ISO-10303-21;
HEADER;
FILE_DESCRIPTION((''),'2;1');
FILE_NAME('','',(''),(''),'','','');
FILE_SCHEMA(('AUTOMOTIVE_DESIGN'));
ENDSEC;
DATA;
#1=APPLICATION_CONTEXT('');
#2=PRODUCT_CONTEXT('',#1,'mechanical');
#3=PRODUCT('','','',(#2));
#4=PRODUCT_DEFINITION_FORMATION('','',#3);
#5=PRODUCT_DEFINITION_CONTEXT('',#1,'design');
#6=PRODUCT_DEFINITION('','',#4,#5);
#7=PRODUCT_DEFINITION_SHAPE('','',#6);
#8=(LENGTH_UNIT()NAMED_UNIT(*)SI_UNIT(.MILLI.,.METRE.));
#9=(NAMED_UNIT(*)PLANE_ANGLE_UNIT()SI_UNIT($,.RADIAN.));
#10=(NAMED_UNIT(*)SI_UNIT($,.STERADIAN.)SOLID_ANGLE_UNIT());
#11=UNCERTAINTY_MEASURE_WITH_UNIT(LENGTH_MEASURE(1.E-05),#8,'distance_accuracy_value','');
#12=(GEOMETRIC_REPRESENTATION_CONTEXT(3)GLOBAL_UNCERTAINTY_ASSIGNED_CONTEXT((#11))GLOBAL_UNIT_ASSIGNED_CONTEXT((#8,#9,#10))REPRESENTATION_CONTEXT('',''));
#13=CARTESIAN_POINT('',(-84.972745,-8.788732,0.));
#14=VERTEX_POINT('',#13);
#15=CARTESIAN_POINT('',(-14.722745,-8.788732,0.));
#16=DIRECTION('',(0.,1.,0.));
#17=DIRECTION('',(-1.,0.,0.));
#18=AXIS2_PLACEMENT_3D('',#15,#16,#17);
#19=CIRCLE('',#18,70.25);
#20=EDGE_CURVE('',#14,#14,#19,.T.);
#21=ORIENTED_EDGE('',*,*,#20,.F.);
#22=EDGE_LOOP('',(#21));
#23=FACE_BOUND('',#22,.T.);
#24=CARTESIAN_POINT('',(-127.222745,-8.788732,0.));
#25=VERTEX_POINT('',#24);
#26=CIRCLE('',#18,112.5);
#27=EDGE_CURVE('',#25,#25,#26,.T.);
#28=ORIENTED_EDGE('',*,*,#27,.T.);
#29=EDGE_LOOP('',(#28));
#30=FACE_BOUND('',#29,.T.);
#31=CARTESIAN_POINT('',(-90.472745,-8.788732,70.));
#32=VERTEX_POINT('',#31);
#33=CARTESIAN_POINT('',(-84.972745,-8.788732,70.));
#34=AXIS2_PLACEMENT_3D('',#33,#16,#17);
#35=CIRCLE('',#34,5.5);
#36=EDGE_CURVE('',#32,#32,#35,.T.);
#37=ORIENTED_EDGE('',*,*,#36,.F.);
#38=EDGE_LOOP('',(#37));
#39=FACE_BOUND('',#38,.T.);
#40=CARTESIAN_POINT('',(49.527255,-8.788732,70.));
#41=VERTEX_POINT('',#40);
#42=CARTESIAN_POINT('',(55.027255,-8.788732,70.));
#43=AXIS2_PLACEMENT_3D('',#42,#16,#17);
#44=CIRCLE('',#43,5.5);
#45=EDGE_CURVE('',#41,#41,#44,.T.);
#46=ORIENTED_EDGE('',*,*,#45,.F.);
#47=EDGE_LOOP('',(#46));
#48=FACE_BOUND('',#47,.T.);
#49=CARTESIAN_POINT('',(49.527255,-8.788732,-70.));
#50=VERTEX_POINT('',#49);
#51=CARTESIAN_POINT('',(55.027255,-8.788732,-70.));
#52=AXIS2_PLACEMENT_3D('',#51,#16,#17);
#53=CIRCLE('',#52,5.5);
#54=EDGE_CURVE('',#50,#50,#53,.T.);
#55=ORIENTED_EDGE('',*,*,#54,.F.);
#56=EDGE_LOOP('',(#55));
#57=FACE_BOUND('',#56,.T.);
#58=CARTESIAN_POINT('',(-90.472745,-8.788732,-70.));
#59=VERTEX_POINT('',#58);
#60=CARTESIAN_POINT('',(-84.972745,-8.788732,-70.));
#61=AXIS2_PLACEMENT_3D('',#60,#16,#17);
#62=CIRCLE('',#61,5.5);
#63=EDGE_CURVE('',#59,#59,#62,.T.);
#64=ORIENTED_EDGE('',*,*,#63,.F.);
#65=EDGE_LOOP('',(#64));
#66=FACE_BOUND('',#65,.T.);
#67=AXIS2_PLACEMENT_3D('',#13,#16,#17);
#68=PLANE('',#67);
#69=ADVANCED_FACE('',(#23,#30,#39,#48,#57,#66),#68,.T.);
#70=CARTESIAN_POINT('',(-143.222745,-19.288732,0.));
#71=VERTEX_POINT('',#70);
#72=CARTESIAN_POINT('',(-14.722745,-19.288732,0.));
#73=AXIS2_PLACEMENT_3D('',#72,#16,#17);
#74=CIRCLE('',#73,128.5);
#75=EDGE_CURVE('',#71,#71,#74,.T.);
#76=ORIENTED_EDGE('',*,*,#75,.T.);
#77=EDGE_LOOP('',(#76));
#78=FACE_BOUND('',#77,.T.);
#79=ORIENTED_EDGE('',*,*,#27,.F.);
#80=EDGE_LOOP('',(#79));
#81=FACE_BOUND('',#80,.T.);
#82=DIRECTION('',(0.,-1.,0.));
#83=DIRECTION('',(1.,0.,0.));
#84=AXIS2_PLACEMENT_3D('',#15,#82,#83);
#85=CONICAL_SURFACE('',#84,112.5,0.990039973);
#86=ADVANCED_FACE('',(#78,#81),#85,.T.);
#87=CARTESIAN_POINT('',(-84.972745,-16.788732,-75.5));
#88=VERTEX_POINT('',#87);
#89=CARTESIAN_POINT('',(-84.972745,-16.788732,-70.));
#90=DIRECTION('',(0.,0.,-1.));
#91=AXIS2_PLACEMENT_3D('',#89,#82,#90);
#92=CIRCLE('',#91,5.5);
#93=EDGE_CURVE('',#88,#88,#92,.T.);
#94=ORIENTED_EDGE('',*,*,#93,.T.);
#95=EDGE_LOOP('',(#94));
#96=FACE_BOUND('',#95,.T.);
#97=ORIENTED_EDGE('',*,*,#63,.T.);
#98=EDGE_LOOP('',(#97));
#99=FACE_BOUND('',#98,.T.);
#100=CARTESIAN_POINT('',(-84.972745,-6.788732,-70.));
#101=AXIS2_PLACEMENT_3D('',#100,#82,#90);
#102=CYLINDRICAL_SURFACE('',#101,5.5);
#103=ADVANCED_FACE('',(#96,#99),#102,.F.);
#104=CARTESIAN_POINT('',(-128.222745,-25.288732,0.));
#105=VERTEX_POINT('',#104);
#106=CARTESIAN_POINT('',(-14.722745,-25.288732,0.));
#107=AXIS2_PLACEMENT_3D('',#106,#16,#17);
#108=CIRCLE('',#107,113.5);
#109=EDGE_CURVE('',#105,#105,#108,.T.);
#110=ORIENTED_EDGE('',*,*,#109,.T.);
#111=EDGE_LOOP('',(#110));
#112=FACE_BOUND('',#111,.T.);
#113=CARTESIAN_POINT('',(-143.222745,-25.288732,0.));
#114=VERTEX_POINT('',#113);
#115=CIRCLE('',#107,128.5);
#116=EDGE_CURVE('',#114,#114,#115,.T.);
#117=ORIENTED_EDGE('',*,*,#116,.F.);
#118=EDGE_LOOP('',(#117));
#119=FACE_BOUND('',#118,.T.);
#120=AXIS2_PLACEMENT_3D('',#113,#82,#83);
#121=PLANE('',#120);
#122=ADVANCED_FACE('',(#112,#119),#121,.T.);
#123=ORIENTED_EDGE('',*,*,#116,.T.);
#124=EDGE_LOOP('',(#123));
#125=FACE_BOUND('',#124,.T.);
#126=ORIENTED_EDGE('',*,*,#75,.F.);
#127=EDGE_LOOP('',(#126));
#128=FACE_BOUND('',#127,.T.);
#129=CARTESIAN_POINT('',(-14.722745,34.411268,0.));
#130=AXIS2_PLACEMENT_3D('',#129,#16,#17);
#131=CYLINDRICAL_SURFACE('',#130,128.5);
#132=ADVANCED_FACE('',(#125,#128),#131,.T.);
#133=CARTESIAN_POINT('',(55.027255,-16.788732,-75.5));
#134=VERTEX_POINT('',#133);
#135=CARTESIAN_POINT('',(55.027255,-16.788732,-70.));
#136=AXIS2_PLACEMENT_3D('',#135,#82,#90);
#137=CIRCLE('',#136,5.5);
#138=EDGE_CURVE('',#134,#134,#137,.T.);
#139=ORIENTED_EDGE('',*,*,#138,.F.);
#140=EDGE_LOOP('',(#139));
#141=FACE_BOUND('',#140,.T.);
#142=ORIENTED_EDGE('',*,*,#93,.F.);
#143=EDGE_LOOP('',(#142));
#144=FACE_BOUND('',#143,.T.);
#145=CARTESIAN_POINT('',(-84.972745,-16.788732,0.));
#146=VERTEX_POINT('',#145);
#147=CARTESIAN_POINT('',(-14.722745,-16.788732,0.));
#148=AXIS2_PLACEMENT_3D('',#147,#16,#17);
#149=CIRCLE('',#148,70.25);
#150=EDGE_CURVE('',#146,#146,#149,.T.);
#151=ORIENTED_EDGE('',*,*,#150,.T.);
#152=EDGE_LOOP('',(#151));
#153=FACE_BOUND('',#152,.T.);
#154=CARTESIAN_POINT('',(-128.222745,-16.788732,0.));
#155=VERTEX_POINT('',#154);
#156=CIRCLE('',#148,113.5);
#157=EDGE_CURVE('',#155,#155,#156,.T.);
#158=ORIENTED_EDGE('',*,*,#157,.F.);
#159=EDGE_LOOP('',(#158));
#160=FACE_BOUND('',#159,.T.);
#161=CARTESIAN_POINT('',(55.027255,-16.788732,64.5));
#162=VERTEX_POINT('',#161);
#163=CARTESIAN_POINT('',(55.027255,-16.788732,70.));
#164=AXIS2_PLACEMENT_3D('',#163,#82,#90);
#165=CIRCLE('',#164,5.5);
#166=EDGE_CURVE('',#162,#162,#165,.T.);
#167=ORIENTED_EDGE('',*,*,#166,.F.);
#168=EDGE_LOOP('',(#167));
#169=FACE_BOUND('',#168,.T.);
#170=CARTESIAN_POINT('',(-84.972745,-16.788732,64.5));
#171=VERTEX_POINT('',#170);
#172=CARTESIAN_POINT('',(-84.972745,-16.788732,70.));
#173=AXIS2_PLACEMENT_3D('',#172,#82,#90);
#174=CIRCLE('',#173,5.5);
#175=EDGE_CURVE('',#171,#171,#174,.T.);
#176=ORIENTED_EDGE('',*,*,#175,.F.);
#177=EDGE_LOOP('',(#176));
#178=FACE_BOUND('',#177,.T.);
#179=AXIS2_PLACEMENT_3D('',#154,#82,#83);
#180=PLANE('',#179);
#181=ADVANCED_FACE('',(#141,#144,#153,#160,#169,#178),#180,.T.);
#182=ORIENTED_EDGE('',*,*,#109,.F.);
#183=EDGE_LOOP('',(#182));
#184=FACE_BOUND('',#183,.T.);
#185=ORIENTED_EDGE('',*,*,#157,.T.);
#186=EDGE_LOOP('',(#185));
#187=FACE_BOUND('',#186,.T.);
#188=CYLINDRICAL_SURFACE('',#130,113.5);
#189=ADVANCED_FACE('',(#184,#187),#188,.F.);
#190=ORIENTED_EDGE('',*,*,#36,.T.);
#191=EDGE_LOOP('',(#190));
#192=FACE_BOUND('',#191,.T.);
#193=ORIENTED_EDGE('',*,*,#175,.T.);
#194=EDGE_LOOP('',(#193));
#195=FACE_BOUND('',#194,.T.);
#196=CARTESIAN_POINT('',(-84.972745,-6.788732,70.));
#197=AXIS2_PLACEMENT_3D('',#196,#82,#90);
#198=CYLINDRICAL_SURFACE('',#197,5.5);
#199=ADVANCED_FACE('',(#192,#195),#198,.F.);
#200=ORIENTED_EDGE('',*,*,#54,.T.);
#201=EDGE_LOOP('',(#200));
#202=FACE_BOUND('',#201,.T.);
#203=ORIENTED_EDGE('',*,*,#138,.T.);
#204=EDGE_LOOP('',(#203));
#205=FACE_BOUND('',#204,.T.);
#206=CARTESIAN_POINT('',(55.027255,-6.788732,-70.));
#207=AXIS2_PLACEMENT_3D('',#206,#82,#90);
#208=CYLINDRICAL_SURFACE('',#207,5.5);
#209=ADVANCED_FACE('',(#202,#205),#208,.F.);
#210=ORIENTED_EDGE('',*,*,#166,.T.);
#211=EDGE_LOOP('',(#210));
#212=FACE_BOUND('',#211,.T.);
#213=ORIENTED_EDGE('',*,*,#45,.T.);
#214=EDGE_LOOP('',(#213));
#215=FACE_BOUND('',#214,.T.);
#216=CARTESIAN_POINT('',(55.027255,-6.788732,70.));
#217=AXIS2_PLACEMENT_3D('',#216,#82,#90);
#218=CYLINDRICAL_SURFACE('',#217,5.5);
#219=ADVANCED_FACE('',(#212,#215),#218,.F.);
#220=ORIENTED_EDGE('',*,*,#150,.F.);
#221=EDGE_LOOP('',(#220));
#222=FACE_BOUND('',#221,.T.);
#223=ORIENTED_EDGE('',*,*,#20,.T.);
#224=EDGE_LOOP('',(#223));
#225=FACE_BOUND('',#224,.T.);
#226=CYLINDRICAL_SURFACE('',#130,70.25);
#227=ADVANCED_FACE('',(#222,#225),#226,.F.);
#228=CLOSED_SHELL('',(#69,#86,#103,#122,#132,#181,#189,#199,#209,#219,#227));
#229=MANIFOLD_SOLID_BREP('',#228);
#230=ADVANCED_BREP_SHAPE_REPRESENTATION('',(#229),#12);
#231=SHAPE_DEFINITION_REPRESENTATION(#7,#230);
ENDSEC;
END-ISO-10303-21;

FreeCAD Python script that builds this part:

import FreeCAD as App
import Part
import Sketcher
from FreeCAD import Vector


def add_polygon(sketch, points):
    """Adds a closed chain of lines whose ends are joined by coincident constraints."""
    first, n = sketch.GeometryCount, len(points)
    for a, b in zip(points, points[1:] + points[:1]):
        sketch.addGeometry(Part.LineSegment(App.Vector(*a, 0), App.Vector(*b, 0)), False)
    for i in range(n):
        sketch.addConstraint(Sketcher.Constraint("Coincident", first + i, 2, first + (i + 1) % n, 1))

doc = App.newDocument("Part")
body = doc.addObject("PartDesign::Body", "Body")

sketch1 = doc.addObject("Sketcher::SketchObject", "Sketch")
body.addObject(sketch1)
sketch1.AttachmentSupport = (doc.XY_Plane, [""])
sketch1.MapMode = "FlatFace"
add_polygon(sketch1, [(-84.972745, -8.788732), (-127.222745, -8.788732), (-143.222745, -19.288732), (-143.222745, -25.288732), (-128.222745, -25.288732), (-128.222745, -16.788732), (-84.972745, -16.788732)])
sketch1.addGeometry(Part.LineSegment(Vector(-14.722745, -8.788732, 0), Vector(-14.722745, -25.288732, 0)), True)
sketch1.addConstraint([
    Sketcher.Constraint("Horizontal", 0),
    Sketcher.Constraint("Vertical", 2),
    Sketcher.Constraint("Horizontal", 3),
    Sketcher.Constraint("Vertical", 4),
    Sketcher.Constraint("Horizontal", 5),
    Sketcher.Constraint("Vertical", 6),
    Sketcher.Constraint("Vertical", 7),
    Sketcher.Constraint("Horizontal", 6, 2, 7, 1),
    Sketcher.Constraint("Horizontal", 3, 2, 7, 2),
    Sketcher.Constraint("DistanceX", 3, 1, 3, 2, 15.0),
    Sketcher.Constraint("DistanceY", 2, 2, 2, 1, 6.0),
    Sketcher.Constraint("DistanceY", 6, 1, 6, 2, 8.0),
    Sketcher.Constraint("DistanceY", 4, 1, 4, 2, 8.5),
    Sketcher.Constraint("DistanceX", 1, 2, 0, 2, 16.0),
    Sketcher.Constraint("DistanceX", 0, 2, 0, 1, 42.25),
    Sketcher.Constraint("DistanceX", 0, 2, 7, 1, 112.5),
    Sketcher.Constraint("DistanceX", 0, 2, -1, 1, 127.222745),
    Sketcher.Constraint("DistanceY", 0, 2, -1, 1, 8.788732),
])
revolution = doc.addObject("PartDesign::Revolution", "Revolution")
body.addObject(revolution)
revolution.Profile = sketch1
revolution.ReferenceAxis = (sketch1, ["Axis0"])
revolution.Angle = 360

sketch2 = doc.addObject("Sketcher::SketchObject", "Sketch001")
body.addObject(sketch2)
sketch2.AttachmentSupport = (doc.XZ_Plane, [""])
sketch2.MapMode = "FlatFace"
sketch2.AttachmentOffset = App.Placement(Vector(0, 0, 16.788732), App.Rotation())
sketch2.addGeometry([
    Part.Circle(Vector(-84.972745, 70, 0), Vector(0, 0, 1), 5.5),
    Part.Circle(Vector(55.027255, 70, 0), Vector(0, 0, 1), 5.5),
    Part.Circle(Vector(55.027255, -70, 0), Vector(0, 0, 1), 5.5),
    Part.Circle(Vector(-84.972745, -70, 0), Vector(0, 0, 1), 5.5),
], False)
sketch2.addConstraint([
    Sketcher.Constraint("Equal", 0, 1),
    Sketcher.Constraint("Equal", 1, 2),
    Sketcher.Constraint("Equal", 2, 3),
    Sketcher.Constraint("Symmetric", 1, 3, 2, 3, -1),
    Sketcher.Constraint("Symmetric", 0, 3, 3, 3, -1),
    Sketcher.Constraint("Horizontal", 0, 3, 1, 3),
    Sketcher.Constraint("Diameter", 0, 11.0),
    Sketcher.Constraint("DistanceY", -1, 1, 0, 3, 70.0),
    Sketcher.Constraint("DistanceX", 0, 3, 1, 3, 140.0),
    Sketcher.Constraint("DistanceX", 0, 3, -1, 1, 84.972745),
])
pocket1 = doc.addObject("PartDesign::Pocket", "Pocket")
body.addObject(pocket1)
pocket1.Profile = sketch2
pocket1.Length = 10

doc.recompute()
